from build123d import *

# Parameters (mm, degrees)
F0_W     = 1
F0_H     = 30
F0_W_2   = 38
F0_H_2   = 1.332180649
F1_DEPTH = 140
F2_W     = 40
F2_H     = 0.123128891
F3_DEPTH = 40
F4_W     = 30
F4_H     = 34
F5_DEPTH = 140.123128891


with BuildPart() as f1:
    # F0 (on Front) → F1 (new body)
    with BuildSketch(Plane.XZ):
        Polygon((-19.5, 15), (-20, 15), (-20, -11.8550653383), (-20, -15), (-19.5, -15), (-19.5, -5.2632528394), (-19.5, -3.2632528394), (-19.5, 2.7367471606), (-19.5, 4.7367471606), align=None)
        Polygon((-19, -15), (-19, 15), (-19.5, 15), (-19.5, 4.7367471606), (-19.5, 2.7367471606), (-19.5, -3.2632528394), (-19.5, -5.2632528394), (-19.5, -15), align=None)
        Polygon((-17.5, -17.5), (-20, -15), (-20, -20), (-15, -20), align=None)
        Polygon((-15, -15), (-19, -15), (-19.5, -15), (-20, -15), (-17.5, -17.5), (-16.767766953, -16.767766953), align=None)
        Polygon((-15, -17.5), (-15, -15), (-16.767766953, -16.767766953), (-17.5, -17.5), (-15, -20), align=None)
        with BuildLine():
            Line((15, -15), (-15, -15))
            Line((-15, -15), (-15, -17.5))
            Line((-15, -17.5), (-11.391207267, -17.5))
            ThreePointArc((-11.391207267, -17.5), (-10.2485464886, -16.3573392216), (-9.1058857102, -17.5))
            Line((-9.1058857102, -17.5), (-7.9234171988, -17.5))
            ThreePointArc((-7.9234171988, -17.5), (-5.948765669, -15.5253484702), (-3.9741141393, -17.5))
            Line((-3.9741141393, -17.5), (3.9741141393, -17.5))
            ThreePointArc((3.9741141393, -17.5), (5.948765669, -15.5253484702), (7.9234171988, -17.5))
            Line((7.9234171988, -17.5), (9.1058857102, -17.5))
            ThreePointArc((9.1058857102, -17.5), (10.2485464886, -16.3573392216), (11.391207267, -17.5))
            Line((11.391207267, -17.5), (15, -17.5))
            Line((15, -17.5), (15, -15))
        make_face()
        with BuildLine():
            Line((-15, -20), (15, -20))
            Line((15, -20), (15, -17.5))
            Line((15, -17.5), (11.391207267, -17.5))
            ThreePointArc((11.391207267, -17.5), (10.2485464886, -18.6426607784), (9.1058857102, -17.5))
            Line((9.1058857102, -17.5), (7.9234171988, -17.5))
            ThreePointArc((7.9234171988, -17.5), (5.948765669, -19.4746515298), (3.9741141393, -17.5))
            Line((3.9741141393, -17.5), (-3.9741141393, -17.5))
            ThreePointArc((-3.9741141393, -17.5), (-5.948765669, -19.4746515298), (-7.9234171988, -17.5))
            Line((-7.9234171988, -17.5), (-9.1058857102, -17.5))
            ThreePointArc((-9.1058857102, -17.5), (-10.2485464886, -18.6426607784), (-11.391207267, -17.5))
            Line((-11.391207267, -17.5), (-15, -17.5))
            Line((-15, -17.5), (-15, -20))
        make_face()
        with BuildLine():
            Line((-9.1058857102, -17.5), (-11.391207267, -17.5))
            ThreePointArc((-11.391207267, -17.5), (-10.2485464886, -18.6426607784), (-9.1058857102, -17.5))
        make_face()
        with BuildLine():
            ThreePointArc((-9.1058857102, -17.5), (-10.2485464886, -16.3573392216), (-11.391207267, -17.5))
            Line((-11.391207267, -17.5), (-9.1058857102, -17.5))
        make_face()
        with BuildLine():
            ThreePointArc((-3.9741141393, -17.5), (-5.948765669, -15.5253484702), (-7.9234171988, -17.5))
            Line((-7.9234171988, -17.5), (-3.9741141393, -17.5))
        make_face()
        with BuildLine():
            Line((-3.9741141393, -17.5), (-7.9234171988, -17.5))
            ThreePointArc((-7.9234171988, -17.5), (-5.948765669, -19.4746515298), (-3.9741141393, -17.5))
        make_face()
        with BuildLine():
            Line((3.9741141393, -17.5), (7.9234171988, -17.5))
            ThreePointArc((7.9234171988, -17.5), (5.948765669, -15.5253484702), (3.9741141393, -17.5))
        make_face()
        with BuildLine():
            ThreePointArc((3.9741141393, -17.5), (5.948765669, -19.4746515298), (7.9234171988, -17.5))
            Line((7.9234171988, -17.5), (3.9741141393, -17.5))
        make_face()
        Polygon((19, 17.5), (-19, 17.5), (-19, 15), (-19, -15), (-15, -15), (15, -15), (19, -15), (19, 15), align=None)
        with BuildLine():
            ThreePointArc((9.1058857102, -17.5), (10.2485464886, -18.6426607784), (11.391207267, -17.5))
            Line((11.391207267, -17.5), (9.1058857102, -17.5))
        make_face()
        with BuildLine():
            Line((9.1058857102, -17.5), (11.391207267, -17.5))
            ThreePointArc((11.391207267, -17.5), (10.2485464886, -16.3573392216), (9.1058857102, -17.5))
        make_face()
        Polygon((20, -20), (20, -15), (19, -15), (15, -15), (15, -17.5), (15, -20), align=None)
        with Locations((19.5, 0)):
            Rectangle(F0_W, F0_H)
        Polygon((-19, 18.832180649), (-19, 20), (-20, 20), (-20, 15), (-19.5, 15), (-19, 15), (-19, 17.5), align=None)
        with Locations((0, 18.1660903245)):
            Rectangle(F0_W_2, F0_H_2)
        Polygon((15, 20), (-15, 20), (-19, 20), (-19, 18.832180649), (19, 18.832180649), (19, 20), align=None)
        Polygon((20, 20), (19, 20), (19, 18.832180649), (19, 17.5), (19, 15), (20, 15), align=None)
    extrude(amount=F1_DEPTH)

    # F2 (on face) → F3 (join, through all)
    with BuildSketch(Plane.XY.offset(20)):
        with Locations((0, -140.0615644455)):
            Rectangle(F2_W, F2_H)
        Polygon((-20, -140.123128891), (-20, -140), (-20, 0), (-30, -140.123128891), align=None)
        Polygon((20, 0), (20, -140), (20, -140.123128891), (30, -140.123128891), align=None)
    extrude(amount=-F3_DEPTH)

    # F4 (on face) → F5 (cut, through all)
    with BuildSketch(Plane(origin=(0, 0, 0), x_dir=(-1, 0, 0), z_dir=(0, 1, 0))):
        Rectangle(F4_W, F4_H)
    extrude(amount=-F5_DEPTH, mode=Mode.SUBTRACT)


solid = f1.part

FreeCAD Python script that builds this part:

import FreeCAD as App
import Part
import Sketcher

V = App.Vector

doc = App.newDocument("Part")
params = doc.addObject("Spreadsheet::Sheet", "Params")
for row, (alias, value) in enumerate([
    ("sketch1_width", "40 mm"),
    ("pad1_length", "140 mm"),
    ("sketch2_width", "40 mm"),
    ("sketch2_width2", "60 mm"),
    ("sketch2_height", "140 mm"),
    ("sketch3_width", "30 mm"),
    ("sketch3_height", "34 mm"),
], start=1):
    params.set(f"A{row}", alias)
    params.set(f"B{row}", "=" + value)
    params.setAlias(f"B{row}", alias)

body = doc.addObject("PartDesign::Body", "Body")

sketch1 = body.newObject("Sketcher::SketchObject", "Sketch")
sketch1.AttachmentSupport = (doc.getObject("XZ_Plane"), [""])
sketch1.MapMode = "FlatFace"
sketch1.addGeometry(Part.LineSegment(V(-20, -20, 0), V(20, -20, 0)), False)
sketch1.addGeometry(Part.LineSegment(V(20, -20, 0), V(20, 20, 0)), False)
sketch1.addGeometry(Part.LineSegment(V(20, 20, 0), V(-20, 20, 0)), False)
sketch1.addGeometry(Part.LineSegment(V(-20, 20, 0), V(-20, -20, 0)), False)
sketch1.addConstraint(Sketcher.Constraint("Coincident", 0, 2, 1, 1))
sketch1.addConstraint(Sketcher.Constraint("Coincident", 1, 2, 2, 1))
sketch1.addConstraint(Sketcher.Constraint("Coincident", 2, 2, 3, 1))
sketch1.addConstraint(Sketcher.Constraint("Coincident", 3, 2, 0, 1))
sketch1.addConstraint(Sketcher.Constraint("Horizontal", 0))
sketch1.addConstraint(Sketcher.Constraint("Vertical", 1))
sketch1.addConstraint(Sketcher.Constraint("Horizontal", 2))
sketch1.addConstraint(Sketcher.Constraint("Vertical", 3))
sketch1.addConstraint(Sketcher.Constraint("Symmetric", 0, 2, 2, 2, -1, 1))
sketch1.addConstraint(Sketcher.Constraint("Equal", 2, 1))
sketch1.addConstraint(Sketcher.Constraint("DistanceX", 0, 1, 0, 2, 40.0))
sketch1.setExpression("Constraints[10]", "Params.sketch1_width")
pad1 = body.newObject("PartDesign::Pad", "Pad")
pad1.Profile = sketch1
pad1.setExpression("Length", "Params.pad1_length")

sketch2 = body.newObject("Sketcher::SketchObject", "Sketch001")
sketch2.AttachmentSupport = (doc.getObject("XY_Plane"), [""])
sketch2.MapMode = "FlatFace"
sketch2.AttachmentOffset = App.Placement(V(0, 0, 20), App.Rotation())
sketch2.addGeometry(Part.LineSegment(V(20, -140, 0), V(-20, -140, 0)), False)
sketch2.addGeometry(Part.LineSegment(V(-20, -140, 0), V(-20, 0, 0)), False)
sketch2.addGeometry(Part.LineSegment(V(-20, 0, 0), V(-30, -140, 0)), False)
sketch2.addGeometry(Part.LineSegment(V(-30, -140, 0), V(30, -140, 0)), False)
sketch2.addGeometry(Part.LineSegment(V(30, -140, 0), V(20, 0, 0)), False)
sketch2.addGeometry(Part.LineSegment(V(20, 0, 0), V(20, -140, 0)), False)
sketch2.addConstraint(Sketcher.Constraint("Coincident", 0, 2, 1, 1))
sketch2.addConstraint(Sketcher.Constraint("Coincident", 1, 2, 2, 1))
sketch2.addConstraint(Sketcher.Constraint("Coincident", 2, 2, 3, 1))
sketch2.addConstraint(Sketcher.Constraint("Coincident", 3, 2, 4, 1))
sketch2.addConstraint(Sketcher.Constraint("Coincident", 4, 2, 5, 1))
sketch2.addConstraint(Sketcher.Constraint("Coincident", 5, 2, 0, 1))
sketch2.addConstraint(Sketcher.Constraint("Horizontal", 0))
sketch2.addConstraint(Sketcher.Constraint("Vertical", 1))
sketch2.addConstraint(Sketcher.Constraint("Horizontal", 3))
sketch2.addConstraint(Sketcher.Constraint("Vertical", 5))
sketch2.addConstraint(Sketcher.Constraint("Symmetric", 1, 2, 4, 2, -1, 1))
sketch2.addConstraint(Sketcher.Constraint("PointOnObject", 1, 2, -1))
sketch2.addConstraint(Sketcher.Constraint("Equal", 2, 4))
sketch2.addConstraint(Sketcher.Constraint("DistanceX", 0, 2, 0, 1, 40.0))
sketch2.addConstraint(Sketcher.Constraint("DistanceX", 3, 1, 3, 2, 60.0))
sketch2.addConstraint(Sketcher.Constraint("DistanceY", 1, 1, 1, 2, 140.0))
sketch2.addConstraint(Sketcher.Constraint("DistanceY", 2, 2, -1, 1, 140.123129))
sketch2.setExpression("Constraints[13]", "Params.sketch2_width")
sketch2.setExpression("Constraints[14]", "Params.sketch2_width2")
sketch2.setExpression("Constraints[15]", "Params.sketch2_height")
pad2 = body.newObject("PartDesign::Pad", "Pad001")
pad2.Profile = sketch2
pad2.Type = "UpToLast"
pad2.Reversed = True

sketch3 = body.newObject("Sketcher::SketchObject", "Sketch002")
sketch3.AttachmentSupport = (doc.getObject("XZ_Plane"), [""])
sketch3.MapMode = "FlatFace"
sketch3.addGeometry(Part.LineSegment(V(15, 17, 0), V(15, -17, 0)), False)
sketch3.addGeometry(Part.LineSegment(V(15, -17, 0), V(-15, -17, 0)), False)
sketch3.addGeometry(Part.LineSegment(V(-15, -17, 0), V(-15, 17, 0)), False)
sketch3.addGeometry(Part.LineSegment(V(-15, 17, 0), V(15, 17, 0)), False)
sketch3.addConstraint(Sketcher.Constraint("Coincident", 0, 2, 1, 1))
sketch3.addConstraint(Sketcher.Constraint("Coincident", 1, 2, 2, 1))
sketch3.addConstraint(Sketcher.Constraint("Coincident", 2, 2, 3, 1))
sketch3.addConstraint(Sketcher.Constraint("Coincident", 3, 2, 0, 1))
sketch3.addConstraint(Sketcher.Constraint("Vertical", 0))
sketch3.addConstraint(Sketcher.Constraint("Horizontal", 1))
sketch3.addConstraint(Sketcher.Constraint("Vertical", 2))
sketch3.addConstraint(Sketcher.Constraint("Horizontal", 3))
sketch3.addConstraint(Sketcher.Constraint("Symmetric", 0, 2, 2, 2, -1, 1))
sketch3.addConstraint(Sketcher.Constraint("DistanceX", 1, 2, 1, 1, 30.0))
sketch3.addConstraint(Sketcher.Constraint("DistanceY", 0, 2, 0, 1, 34.0))
sketch3.setExpression("Constraints[9]", "Params.sketch3_width")
sketch3.setExpression("Constraints[10]", "Params.sketch3_height")
pocket1 = body.newObject("PartDesign::Pocket", "Pocket")
pocket1.Profile = sketch3
pocket1.Type = "ThroughAll"
pocket1.Reversed = True

doc.recompute()
